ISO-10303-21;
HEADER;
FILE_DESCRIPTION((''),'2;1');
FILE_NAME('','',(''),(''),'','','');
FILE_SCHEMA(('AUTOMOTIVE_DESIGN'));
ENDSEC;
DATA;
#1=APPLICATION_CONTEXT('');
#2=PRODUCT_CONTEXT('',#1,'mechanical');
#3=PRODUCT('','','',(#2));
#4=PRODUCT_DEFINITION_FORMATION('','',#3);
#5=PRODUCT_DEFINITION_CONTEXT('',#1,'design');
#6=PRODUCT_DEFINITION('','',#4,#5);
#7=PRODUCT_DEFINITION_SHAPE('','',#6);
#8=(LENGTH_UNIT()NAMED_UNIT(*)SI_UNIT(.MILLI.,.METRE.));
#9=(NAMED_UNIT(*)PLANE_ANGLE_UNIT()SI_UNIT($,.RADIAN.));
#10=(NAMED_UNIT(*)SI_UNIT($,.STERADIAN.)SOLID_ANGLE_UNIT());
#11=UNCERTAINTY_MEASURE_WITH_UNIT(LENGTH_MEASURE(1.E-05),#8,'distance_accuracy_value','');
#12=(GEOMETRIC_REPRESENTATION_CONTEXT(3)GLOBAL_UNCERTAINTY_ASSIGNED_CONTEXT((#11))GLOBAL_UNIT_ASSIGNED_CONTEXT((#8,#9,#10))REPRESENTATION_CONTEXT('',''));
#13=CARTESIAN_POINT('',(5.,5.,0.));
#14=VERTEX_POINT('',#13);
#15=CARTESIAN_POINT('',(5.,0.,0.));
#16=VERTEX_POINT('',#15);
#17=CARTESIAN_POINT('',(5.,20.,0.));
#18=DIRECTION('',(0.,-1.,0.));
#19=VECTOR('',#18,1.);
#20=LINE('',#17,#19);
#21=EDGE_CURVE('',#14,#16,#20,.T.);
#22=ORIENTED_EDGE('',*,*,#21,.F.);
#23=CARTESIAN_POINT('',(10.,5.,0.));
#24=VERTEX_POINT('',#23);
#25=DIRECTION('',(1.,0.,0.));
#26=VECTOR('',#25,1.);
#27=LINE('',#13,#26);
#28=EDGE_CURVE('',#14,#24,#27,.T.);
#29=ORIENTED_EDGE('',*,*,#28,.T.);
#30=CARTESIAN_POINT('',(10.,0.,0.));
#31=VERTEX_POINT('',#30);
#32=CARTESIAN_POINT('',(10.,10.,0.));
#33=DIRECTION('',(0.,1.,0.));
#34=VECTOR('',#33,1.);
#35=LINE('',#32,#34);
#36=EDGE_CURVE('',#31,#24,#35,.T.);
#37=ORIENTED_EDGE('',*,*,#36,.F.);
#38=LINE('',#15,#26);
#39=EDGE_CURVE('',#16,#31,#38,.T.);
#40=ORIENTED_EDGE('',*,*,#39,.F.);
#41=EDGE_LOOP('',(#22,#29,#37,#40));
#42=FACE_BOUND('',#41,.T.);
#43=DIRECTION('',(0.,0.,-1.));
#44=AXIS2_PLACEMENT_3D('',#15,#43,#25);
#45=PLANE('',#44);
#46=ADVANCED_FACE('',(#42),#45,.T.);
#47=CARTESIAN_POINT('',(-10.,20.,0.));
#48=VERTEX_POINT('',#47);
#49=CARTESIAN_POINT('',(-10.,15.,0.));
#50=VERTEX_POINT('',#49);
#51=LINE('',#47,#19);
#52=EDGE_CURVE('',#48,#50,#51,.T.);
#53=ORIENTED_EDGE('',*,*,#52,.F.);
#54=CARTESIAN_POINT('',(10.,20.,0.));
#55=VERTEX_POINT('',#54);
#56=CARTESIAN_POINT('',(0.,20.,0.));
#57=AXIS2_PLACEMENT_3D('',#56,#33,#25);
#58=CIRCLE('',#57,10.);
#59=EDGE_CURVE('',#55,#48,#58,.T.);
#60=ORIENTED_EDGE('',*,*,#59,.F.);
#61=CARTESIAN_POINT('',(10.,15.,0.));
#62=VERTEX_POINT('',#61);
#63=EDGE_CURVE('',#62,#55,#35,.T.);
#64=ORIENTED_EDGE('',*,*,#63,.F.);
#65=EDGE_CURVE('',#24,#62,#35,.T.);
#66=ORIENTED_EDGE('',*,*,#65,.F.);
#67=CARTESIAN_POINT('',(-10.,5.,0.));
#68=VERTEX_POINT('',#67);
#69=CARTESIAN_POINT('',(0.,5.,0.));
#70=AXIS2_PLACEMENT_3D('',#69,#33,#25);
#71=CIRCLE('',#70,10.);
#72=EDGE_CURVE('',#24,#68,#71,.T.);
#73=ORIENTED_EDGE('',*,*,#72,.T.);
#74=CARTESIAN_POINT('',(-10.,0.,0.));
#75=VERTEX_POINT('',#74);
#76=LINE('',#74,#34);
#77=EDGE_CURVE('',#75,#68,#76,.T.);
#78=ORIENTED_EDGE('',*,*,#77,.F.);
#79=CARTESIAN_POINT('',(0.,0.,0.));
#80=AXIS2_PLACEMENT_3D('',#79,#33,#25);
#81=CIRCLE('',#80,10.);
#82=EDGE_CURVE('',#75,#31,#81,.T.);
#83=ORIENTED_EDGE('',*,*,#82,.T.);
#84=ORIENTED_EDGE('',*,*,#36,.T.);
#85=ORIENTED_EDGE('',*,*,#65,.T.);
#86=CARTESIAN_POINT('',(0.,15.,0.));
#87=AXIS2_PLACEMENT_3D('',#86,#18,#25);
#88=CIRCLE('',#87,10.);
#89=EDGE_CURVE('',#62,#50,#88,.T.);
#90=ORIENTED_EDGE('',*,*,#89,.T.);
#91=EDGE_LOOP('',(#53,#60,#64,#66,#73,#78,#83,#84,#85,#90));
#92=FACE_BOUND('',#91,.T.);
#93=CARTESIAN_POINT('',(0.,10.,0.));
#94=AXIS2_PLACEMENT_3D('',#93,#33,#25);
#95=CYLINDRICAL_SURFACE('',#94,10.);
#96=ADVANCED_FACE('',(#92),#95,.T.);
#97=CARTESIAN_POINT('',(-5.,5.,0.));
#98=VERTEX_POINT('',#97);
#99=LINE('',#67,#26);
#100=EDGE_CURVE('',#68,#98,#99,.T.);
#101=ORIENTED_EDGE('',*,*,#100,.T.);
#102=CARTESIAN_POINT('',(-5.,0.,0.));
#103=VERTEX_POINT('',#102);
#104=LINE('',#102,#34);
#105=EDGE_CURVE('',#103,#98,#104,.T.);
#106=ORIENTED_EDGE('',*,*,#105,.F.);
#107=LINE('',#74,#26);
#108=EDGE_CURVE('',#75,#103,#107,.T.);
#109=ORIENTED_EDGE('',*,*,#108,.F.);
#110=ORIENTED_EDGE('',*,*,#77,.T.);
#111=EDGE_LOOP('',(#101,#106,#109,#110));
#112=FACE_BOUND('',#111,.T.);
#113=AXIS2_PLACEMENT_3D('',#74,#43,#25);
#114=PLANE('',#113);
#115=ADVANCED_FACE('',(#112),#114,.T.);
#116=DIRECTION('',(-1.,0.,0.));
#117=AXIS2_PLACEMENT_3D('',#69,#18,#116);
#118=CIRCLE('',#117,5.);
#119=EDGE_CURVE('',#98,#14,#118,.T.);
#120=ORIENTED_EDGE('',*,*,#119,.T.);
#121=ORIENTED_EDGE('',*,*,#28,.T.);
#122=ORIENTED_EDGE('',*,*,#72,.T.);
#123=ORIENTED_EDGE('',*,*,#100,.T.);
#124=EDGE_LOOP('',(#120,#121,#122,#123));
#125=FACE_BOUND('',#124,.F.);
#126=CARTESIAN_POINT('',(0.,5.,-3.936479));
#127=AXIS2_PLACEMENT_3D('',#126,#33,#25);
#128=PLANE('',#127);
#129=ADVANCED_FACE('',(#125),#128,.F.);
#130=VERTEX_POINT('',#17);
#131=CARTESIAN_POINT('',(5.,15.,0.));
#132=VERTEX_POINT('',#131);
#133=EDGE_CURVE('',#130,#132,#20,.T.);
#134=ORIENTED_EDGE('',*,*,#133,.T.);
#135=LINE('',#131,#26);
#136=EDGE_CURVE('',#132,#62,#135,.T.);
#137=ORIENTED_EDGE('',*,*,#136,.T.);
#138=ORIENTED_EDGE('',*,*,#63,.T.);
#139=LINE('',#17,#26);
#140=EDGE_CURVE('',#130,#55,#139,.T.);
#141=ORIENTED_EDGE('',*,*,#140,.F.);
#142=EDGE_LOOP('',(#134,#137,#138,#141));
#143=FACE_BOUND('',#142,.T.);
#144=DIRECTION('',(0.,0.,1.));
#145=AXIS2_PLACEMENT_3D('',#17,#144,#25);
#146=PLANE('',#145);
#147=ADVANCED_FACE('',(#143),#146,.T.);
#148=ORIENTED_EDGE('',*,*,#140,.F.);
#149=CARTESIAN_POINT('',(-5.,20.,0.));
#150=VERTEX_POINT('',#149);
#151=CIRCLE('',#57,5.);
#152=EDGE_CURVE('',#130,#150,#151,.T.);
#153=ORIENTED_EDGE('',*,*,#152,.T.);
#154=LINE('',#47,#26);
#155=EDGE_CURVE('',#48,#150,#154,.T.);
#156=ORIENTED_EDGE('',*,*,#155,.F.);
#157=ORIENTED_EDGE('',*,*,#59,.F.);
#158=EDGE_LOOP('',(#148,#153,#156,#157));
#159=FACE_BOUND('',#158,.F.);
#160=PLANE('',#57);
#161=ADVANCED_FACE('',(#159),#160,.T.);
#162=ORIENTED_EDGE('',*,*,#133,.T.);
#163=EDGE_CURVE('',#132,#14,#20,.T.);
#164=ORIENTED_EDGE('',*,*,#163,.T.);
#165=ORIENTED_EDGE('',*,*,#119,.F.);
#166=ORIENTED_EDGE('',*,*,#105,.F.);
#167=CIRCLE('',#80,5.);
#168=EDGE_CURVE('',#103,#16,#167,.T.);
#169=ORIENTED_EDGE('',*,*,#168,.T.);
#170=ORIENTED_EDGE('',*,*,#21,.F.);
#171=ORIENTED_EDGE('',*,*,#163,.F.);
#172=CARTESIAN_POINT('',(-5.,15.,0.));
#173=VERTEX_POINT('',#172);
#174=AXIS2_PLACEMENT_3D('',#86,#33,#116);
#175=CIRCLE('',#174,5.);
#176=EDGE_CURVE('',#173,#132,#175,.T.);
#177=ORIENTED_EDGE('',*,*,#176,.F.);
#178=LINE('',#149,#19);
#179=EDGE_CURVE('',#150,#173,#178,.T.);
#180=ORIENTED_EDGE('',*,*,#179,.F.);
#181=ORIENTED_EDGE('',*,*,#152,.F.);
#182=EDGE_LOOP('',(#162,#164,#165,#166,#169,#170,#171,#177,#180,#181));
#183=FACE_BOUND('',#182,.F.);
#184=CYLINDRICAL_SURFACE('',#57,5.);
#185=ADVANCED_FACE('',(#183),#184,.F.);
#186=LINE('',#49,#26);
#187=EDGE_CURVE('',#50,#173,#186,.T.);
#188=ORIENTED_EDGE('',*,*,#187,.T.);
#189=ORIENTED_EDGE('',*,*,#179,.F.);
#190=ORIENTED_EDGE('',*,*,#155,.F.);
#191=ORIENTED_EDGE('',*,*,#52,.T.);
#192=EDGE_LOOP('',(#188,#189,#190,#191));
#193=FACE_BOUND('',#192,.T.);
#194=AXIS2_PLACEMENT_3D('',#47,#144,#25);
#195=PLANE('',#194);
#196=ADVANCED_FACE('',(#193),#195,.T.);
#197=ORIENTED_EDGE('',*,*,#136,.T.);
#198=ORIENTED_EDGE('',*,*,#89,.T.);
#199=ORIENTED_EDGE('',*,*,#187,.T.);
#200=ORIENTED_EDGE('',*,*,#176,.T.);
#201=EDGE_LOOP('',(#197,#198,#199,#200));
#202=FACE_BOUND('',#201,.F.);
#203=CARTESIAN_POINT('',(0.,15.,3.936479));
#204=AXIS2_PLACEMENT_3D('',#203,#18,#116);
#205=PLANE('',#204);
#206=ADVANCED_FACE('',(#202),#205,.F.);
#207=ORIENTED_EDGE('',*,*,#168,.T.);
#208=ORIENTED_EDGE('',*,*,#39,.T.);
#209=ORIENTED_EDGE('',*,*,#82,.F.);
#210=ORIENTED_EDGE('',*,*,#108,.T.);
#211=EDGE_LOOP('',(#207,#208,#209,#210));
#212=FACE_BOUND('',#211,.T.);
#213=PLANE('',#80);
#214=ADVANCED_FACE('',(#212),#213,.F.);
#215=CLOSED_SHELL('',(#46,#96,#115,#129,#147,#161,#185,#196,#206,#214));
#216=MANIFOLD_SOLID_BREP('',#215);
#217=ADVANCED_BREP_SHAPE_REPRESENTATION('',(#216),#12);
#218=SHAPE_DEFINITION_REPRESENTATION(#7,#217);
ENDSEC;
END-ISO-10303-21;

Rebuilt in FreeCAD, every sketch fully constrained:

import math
import FreeCAD as App
import Part
import Sketcher

doc = App.newDocument("Part")
body = doc.addObject("PartDesign::Body", "Body")

sketch1 = body.newObject("Sketcher::SketchObject", "Sketch")
sketch1.AttachmentSupport = (doc.getObject("XY_Plane"), [""])
sketch1.MapMode = "FlatFace"
sketch1.addGeometry(Part.LineSegment(App.Vector(0, 20, 0), App.Vector(0, 0, 0)), False)
sketch1.addGeometry(Part.LineSegment(App.Vector(0, 0, 0), App.Vector(10, 0, 0)), False)
sketch1.addGeometry(Part.LineSegment(App.Vector(10, 0, 0), App.Vector(10, 20, 0)), False)
sketch1.addGeometry(Part.LineSegment(App.Vector(10, 20, 0), App.Vector(0, 20, 0)), False)
sketch1.addConstraint(Sketcher.Constraint("Coincident", 0, 2, 1, 1))
sketch1.addConstraint(Sketcher.Constraint("Coincident", 1, 2, 2, 1))
sketch1.addConstraint(Sketcher.Constraint("Coincident", 2, 2, 3, 1))
sketch1.addConstraint(Sketcher.Constraint("Coincident", 3, 2, 0, 1))
sketch1.addConstraint(Sketcher.Constraint("Vertical", 0))
sketch1.addConstraint(Sketcher.Constraint("Horizontal", 1))
sketch1.addConstraint(Sketcher.Constraint("Vertical", 2))
sketch1.addConstraint(Sketcher.Constraint("Horizontal", 3))
sketch1.addConstraint(Sketcher.Constraint("Coincident", 0, 2, -1, 1))
sketch1.addConstraint(Sketcher.Constraint("DistanceX", 1, 1, 1, 2, 10.0))
sketch1.addConstraint(Sketcher.Constraint("DistanceY", 0, 2, 0, 1, 20.0))
revolution = body.newObject("PartDesign::Revolution", "Revolution")
revolution.Profile = sketch1
revolution.ReferenceAxis = (sketch1, ["V_Axis"])
revolution.Angle = 360

sketch2 = body.newObject("Sketcher::SketchObject", "Sketch001")
sketch2.AttachmentSupport = (doc.getObject("XZ_Plane"), [""])
sketch2.MapMode = "FlatFace"
sketch2.AttachmentOffset = App.Placement(App.Vector(0, 0, -20), App.Rotation())
sketch2.addGeometry(Part.Circle(App.Vector(0, 0, 0), App.Vector(0, 0, 1), 5), False)
sketch2.addConstraint(Sketcher.Constraint("Coincident", 0, 3, -1, 1))
sketch2.addConstraint(Sketcher.Constraint("Diameter", 0, 10.0))
pocket1 = body.newObject("PartDesign::Pocket", "Pocket")
pocket1.Profile = sketch2
pocket1.Length = 20
pocket1.Reversed = True

sketch3 = body.newObject("Sketcher::SketchObject", "Sketch002")
sketch3.AttachmentSupport = (doc.getObject("XZ_Plane"), [""])
sketch3.MapMode = "FlatFace"
sketch3.AttachmentOffset = App.Placement(App.Vector(0, 0, -20), App.Rotation())
sketch3.addGeometry(Part.LineSegment(App.Vector(-5, 0, 0), App.Vector(-10, 0, 0)), False)
sketch3.addGeometry(Part.ArcOfCircle(Part.Circle(App.Vector(0, 0, 0), App.Vector(0, 0, 1), 10), math.radians(0), math.radians(180)), False)
sketch3.addGeometry(Part.LineSegment(App.Vector(10, 0, 0), App.Vector(5, 0, 0)), False)
sketch3.addGeometry(Part.ArcOfCircle(Part.Circle(App.Vector(0, 0, 0), App.Vector(0, 0, 1), 5), math.radians(0), math.radians(180)), False)
sketch3.addConstraint(Sketcher.Constraint("Coincident", 0, 2, 1, 2))
sketch3.addConstraint(Sketcher.Constraint("Coincident", 1, 1, 2, 1))
sketch3.addConstraint(Sketcher.Constraint("Coincident", 2, 2, 3, 1))
sketch3.addConstraint(Sketcher.Constraint("Coincident", 3, 2, 0, 1))
sketch3.addConstraint(Sketcher.Constraint("Horizontal", 0))
sketch3.addConstraint(Sketcher.Constraint("Horizontal", 2))
sketch3.addConstraint(Sketcher.Constraint("Coincident", 1, 3, -1, 1))
sketch3.addConstraint(Sketcher.Constraint("Coincident", 3, 3, -1, 1))
sketch3.addConstraint(Sketcher.Constraint("PointOnObject", 0, 2, -1))
sketch3.addConstraint(Sketcher.Constraint("PointOnObject", 1, 1, -1))
sketch3.addConstraint(Sketcher.Constraint("Radius", 1, 10.0))
sketch3.addConstraint(Sketcher.Constraint("Radius", 3, 5.0))
pocket2 = body.newObject("PartDesign::Pocket", "Pocket001")
pocket2.Profile = sketch3
pocket2.Length = 5
pocket2.Reversed = True

sketch4 = body.newObject("Sketcher::SketchObject", "Sketch003")
sketch4.AttachmentSupport = (doc.getObject("XZ_Plane"), [""])
sketch4.MapMode = "FlatFace"
sketch4.addGeometry(Part.LineSegment(App.Vector(-5, 0, 0), App.Vector(-10, 0, 0)), False)
sketch4.addGeometry(Part.ArcOfCircle(Part.Circle(App.Vector(0, 0, 0), App.Vector(0, 0, 1), 10), math.radians(180), math.radians(360)), False)
sketch4.addGeometry(Part.LineSegment(App.Vector(10, 0, 0), App.Vector(5, 0, 0)), False)
sketch4.addGeometry(Part.ArcOfCircle(Part.Circle(App.Vector(0, 0, 0), App.Vector(0, 0, 1), 5), math.radians(180), math.radians(360)), False)
sketch4.addConstraint(Sketcher.Constraint("Coincident", 0, 2, 1, 1))
sketch4.addConstraint(Sketcher.Constraint("Coincident", 1, 2, 2, 1))
sketch4.addConstraint(Sketcher.Constraint("Coincident", 2, 2, 3, 2))
sketch4.addConstraint(Sketcher.Constraint("Coincident", 3, 1, 0, 1))
sketch4.addConstraint(Sketcher.Constraint("Horizontal", 0))
sketch4.addConstraint(Sketcher.Constraint("Horizontal", 2))
sketch4.addConstraint(Sketcher.Constraint("Coincident", 1, 3, -1, 1))
sketch4.addConstraint(Sketcher.Constraint("Coincident", 3, 3, -1, 1))
sketch4.addConstraint(Sketcher.Constraint("PointOnObject", 0, 2, -1))
sketch4.addConstraint(Sketcher.Constraint("PointOnObject", 1, 2, -1))
sketch4.addConstraint(Sketcher.Constraint("Radius", 1, 10.0))
sketch4.addConstraint(Sketcher.Constraint("Radius", 3, 5.0))
pocket3 = body.newObject("PartDesign::Pocket", "Pocket002")
pocket3.Profile = sketch4
pocket3.Length = 5

doc.recompute()
